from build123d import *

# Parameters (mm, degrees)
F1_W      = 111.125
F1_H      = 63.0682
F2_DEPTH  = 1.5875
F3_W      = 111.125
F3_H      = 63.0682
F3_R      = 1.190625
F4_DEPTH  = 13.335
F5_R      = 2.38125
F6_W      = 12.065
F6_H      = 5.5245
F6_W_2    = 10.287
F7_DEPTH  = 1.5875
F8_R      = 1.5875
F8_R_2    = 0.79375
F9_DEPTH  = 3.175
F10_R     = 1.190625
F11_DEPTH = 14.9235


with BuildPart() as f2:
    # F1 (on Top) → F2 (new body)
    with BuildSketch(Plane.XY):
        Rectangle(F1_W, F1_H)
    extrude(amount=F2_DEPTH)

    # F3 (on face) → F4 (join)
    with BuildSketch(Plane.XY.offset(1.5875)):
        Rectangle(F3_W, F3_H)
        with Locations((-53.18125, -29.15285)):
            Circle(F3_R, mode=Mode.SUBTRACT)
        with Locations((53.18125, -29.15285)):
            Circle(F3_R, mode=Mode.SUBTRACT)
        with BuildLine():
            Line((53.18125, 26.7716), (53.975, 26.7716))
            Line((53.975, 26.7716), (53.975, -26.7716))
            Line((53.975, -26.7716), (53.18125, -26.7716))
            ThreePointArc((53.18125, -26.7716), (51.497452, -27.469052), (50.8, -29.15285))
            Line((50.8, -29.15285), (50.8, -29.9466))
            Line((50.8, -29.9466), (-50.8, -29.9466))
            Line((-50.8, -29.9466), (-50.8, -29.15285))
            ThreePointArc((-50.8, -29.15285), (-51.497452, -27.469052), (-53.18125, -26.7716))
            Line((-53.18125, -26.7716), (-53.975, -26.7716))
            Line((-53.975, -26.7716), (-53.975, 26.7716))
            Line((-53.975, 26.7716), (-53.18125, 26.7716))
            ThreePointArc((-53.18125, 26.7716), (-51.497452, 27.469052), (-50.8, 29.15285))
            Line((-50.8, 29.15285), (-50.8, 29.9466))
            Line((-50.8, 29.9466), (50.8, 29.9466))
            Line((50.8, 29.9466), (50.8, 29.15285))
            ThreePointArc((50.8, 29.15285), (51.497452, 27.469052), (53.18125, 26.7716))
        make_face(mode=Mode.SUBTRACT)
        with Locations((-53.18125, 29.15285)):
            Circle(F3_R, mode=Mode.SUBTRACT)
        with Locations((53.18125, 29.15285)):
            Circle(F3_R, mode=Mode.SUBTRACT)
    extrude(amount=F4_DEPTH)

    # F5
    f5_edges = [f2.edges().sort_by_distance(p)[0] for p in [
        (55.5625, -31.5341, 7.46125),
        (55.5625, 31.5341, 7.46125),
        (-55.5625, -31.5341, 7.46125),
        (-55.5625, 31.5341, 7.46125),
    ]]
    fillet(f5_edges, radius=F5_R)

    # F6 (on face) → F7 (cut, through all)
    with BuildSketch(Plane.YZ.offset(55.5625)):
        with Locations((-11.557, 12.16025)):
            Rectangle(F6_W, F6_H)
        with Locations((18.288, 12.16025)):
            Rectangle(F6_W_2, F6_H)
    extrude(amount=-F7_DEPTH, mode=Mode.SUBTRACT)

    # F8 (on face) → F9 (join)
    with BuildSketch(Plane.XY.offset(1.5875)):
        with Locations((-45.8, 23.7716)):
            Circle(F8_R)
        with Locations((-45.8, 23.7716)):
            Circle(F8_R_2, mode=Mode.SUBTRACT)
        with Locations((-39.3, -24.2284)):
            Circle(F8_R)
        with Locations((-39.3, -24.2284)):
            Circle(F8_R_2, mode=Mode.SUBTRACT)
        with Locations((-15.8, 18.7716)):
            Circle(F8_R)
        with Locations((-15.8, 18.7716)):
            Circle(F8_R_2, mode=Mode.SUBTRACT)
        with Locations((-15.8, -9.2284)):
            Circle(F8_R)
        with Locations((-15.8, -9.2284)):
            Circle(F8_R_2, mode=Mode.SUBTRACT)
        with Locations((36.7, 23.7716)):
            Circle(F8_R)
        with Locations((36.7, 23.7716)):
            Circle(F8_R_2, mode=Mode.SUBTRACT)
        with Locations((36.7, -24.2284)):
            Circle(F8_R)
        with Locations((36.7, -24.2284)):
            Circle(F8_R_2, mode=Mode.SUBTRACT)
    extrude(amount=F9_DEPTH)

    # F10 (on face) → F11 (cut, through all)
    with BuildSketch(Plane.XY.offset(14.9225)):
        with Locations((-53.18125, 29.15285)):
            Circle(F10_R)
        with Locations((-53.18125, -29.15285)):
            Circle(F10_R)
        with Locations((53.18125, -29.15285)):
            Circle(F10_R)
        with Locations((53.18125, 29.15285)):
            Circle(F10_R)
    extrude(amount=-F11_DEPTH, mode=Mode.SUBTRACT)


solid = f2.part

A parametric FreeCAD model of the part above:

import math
import FreeCAD as App
import Part
import Sketcher

V = App.Vector
Q = App.Units.Quantity


def edges_at(feature, points):
    """Names of the edges that pass closest to the given points."""
    edges = feature.Shape.Edges
    near = lambda p: min(range(len(edges)), key=lambda i: edges[i].distToShape(Part.Vertex(*p))[0])
    return sorted({f"Edge{near(p) + 1}" for p in points})


def add_polygon(sketch, points):
    """Adds a closed chain of lines whose ends are joined by coincident constraints."""
    first, n = sketch.GeometryCount, len(points)
    for a, b in zip(points, points[1:] + points[:1]):
        sketch.addGeometry(Part.LineSegment(App.Vector(*a, 0), App.Vector(*b, 0)), False)
    for i in range(n):
        sketch.addConstraint(Sketcher.Constraint("Coincident", first + i, 2, first + (i + 1) % n, 1))

doc = App.newDocument("Part")
params = doc.addObject("Spreadsheet::Sheet", "Params")
for row, (alias, value) in enumerate([
    ("sketch1_width", "4.375 in"),
    ("sketch1_height", "2.483 in"),
    ("pad1_length", "0.0625 in"),
    ("sketch2_width", "4 in"),
    ("sketch2_diameter", "0.09375 in"),
    ("sketch2_radius", "0.09375 in"),
    ("sketch2_width2", "4.375 in"),
    ("sketch2_width3", "0.03125 in"),
    ("pad2_length", "0.525 in"),
    ("fillet_radius", "0.09375 in"),
    ("sketch3_width", "0.475 in"),
    ("sketch3_width2", "0.405 in"),
    ("pocket1_length", "0.0625 in"),
    ("sketch4_diameter", "0.125 in"),
    ("sketch4_diameter2", "0.0625 in"),
    ("pad3_length", "0.125 in"),
    ("sketch5_diameter", "0.09375 in"),
], start=1):
    params.set(f"A{row}", alias)
    params.set(f"B{row}", "=" + value)
    params.setAlias(f"B{row}", alias)

body = doc.addObject("PartDesign::Body", "Body")

sketch1 = body.newObject("Sketcher::SketchObject", "Sketch")
sketch1.AttachmentSupport = (doc.getObject("XY_Plane"), [""])
sketch1.MapMode = "FlatFace"
add_polygon(sketch1, [(-56, 32), (-56, -32), (56, -32), (56, 32)])
sketch1.addConstraint(Sketcher.Constraint("Vertical", 0))
sketch1.addConstraint(Sketcher.Constraint("Horizontal", 1))
sketch1.addConstraint(Sketcher.Constraint("Vertical", 2))
sketch1.addConstraint(Sketcher.Constraint("Horizontal", 3))
sketch1.addConstraint(Sketcher.Constraint("Symmetric", 0, 2, 2, 2, -1, 1))
sketch1.addConstraint(Sketcher.Constraint("DistanceX", 1, 1, 1, 2, Q("4.375 in")))
sketch1.addConstraint(Sketcher.Constraint("DistanceY", 0, 2, 0, 1, Q("2.483 in")))
sketch1.setExpression("Constraints[9]", "Params.sketch1_width")
sketch1.setExpression("Constraints[10]", "Params.sketch1_height")
pad1 = body.newObject("PartDesign::Pad", "Pad")
pad1.Profile = sketch1
pad1.setExpression("Length", "Params.pad1_length")

sketch2 = body.newObject("Sketcher::SketchObject", "Sketch001")
sketch2.AttachmentSupport = (doc.getObject("XY_Plane"), [""])
sketch2.MapMode = "FlatFace"
sketch2.AttachmentOffset = App.Placement(V(0, 0, 0.0625 * 25.4), App.Rotation())
add_polygon(sketch2, [(-55.6, 31.5), (-55.6, -31.5), (55.6, -31.5), (55.6, 31.5)])
sketch2.addGeometry(Part.Circle(V(-53.2, -29.2, 0), V(0, 0, 1), 1.2), False)
sketch2.addGeometry(Part.Circle(V(53.2, -29.2, 0), V(0, 0, 1), 1.2), False)
sketch2.addGeometry(Part.Circle(V(-53.2, 29.2, 0), V(0, 0, 1), 1.2), False)
sketch2.addGeometry(Part.ArcOfCircle(Part.Circle(V(53.2, 29.2, 0), V(0, 0, 1), 2.4), math.radians(-180), math.radians(-90)), False)
sketch2.addGeometry(Part.LineSegment(V(53.2, 26.8, 0), V(54, 26.8, 0)), False)
sketch2.addGeometry(Part.LineSegment(V(54, 26.8, 0), V(54, -26.8, 0)), False)
sketch2.addGeometry(Part.LineSegment(V(54, -26.8, 0), V(53.2, -26.8, 0)), False)
sketch2.addGeometry(Part.ArcOfCircle(Part.Circle(V(53.2, -29.2, 0), V(0, 0, 1), 2.4), math.radians(90), math.radians(180)), False)
sketch2.addGeometry(Part.LineSegment(V(50.8, -29.2, 0), V(50.8, -29.9, 0)), False)
sketch2.addGeometry(Part.LineSegment(V(50.8, -29.9, 0), V(-50.8, -29.9, 0)), False)
sketch2.addGeometry(Part.LineSegment(V(-50.8, -29.9, 0), V(-50.8, -29.2, 0)), False)
sketch2.addGeometry(Part.ArcOfCircle(Part.Circle(V(-53.2, -29.2, 0), V(0, 0, 1), 2.4), math.radians(0), math.radians(90)), False)
sketch2.addGeometry(Part.LineSegment(V(-53.2, -26.8, 0), V(-54, -26.8, 0)), False)
sketch2.addGeometry(Part.LineSegment(V(-54, -26.8, 0), V(-54, 26.8, 0)), False)
sketch2.addGeometry(Part.LineSegment(V(-54, 26.8, 0), V(-53.2, 26.8, 0)), False)
sketch2.addGeometry(Part.ArcOfCircle(Part.Circle(V(-53.2, 29.2, 0), V(0, 0, 1), 2.4), math.radians(-90), math.radians(0)), False)
sketch2.addGeometry(Part.LineSegment(V(-50.8, 29.2, 0), V(-50.8, 29.9, 0)), False)
sketch2.addGeometry(Part.LineSegment(V(-50.8, 29.9, 0), V(50.8, 29.9, 0)), False)
sketch2.addGeometry(Part.LineSegment(V(50.8, 29.9, 0), V(50.8, 29.2, 0)), False)
sketch2.addGeometry(Part.Circle(V(53.2, 29.2, 0), V(0, 0, 1), 1.2), False)
sketch2.addConstraint(Sketcher.Constraint("Tangent", 7, 2, 8, 1))
sketch2.addConstraint(Sketcher.Constraint("Coincident", 8, 2, 9, 1))
sketch2.addConstraint(Sketcher.Constraint("Coincident", 9, 2, 10, 1))
sketch2.addConstraint(Sketcher.Constraint("Tangent", 10, 2, 11, 1))
sketch2.addConstraint(Sketcher.Constraint("Tangent", 11, 2, 12, 1))
sketch2.addConstraint(Sketcher.Constraint("Coincident", 12, 2, 13, 1))
sketch2.addConstraint(Sketcher.Constraint("Coincident", 13, 2, 14, 1))
sketch2.addConstraint(Sketcher.Constraint("Tangent", 14, 2, 15, 1))
sketch2.addConstraint(Sketcher.Constraint("Tangent", 15, 2, 16, 1))
sketch2.addConstraint(Sketcher.Constraint("Coincident", 16, 2, 17, 1))
sketch2.addConstraint(Sketcher.Constraint("Coincident", 17, 2, 18, 1))
sketch2.addConstraint(Sketcher.Constraint("Tangent", 18, 2, 19, 1))
sketch2.addConstraint(Sketcher.Constraint("Tangent", 19, 2, 20, 1))
sketch2.addConstraint(Sketcher.Constraint("Coincident", 20, 2, 21, 1))
sketch2.addConstraint(Sketcher.Constraint("Coincident", 21, 2, 22, 1))
sketch2.addConstraint(Sketcher.Constraint("Tangent", 22, 2, 7, 1))
sketch2.addConstraint(Sketcher.Constraint("Vertical", 0))
sketch2.addConstraint(Sketcher.Constraint("Horizontal", 1))
sketch2.addConstraint(Sketcher.Constraint("Vertical", 2))
sketch2.addConstraint(Sketcher.Constraint("Horizontal", 3))
sketch2.addConstraint(Sketcher.Constraint("Horizontal", 8))
sketch2.addConstraint(Sketcher.Constraint("Vertical", 9))
sketch2.addConstraint(Sketcher.Constraint("Horizontal", 10))
sketch2.addConstraint(Sketcher.Constraint("Vertical", 12))
sketch2.addConstraint(Sketcher.Constraint("Horizontal", 13))
sketch2.addConstraint(Sketcher.Constraint("Vertical", 14))
sketch2.addConstraint(Sketcher.Constraint("Horizontal", 16))
sketch2.addConstraint(Sketcher.Constraint("Vertical", 17))
sketch2.addConstraint(Sketcher.Constraint("Horizontal", 18))
sketch2.addConstraint(Sketcher.Constraint("Vertical", 20))
sketch2.addConstraint(Sketcher.Constraint("Horizontal", 21))
sketch2.addConstraint(Sketcher.Constraint("Vertical", 22))
sketch2.addConstraint(Sketcher.Constraint("Coincident", 11, 3, 5, 3))
sketch2.addConstraint(Sketcher.Constraint("Coincident", 15, 3, 4, 3))
sketch2.addConstraint(Sketcher.Constraint("Coincident", 19, 3, 6, 3))
sketch2.addConstraint(Sketcher.Constraint("Coincident", 23, 3, 7, 3))
sketch2.addConstraint(Sketcher.Constraint("Equal", 4, 5))
sketch2.addConstraint(Sketcher.Constraint("Equal", 5, 6))
sketch2.addConstraint(Sketcher.Constraint("Equal", 7, 11))
sketch2.addConstraint(Sketcher.Constraint("Equal", 11, 15))
sketch2.addConstraint(Sketcher.Constraint("Equal", 15, 19))
sketch2.addConstraint(Sketcher.Constraint("Equal", 6, 23))
sketch2.addConstraint(Sketcher.Constraint("Symmetric", 5, 3, 6, 3, -1, 1))
sketch2.addConstraint(Sketcher.Constraint("Symmetric", 4, 3, 7, 3, -1, 1))
sketch2.addConstraint(Sketcher.Constraint("Symmetric", 0, 2, 2, 2, -1, 1))
sketch2.addConstraint(Sketcher.Constraint("Symmetric", 4, 3, 5, 3, -2))
sketch2.addConstraint(Sketcher.Constraint("Equal", 10, 16))
sketch2.addConstraint(Sketcher.Constraint("Equal", 18, 12))
sketch2.addConstraint(Sketcher.Constraint("Equal", 14, 20))
sketch2.addConstraint(Sketcher.Constraint("DistanceX", 13, 2, 13, 1, Q("4 in")))
sketch2.addConstraint(Sketcher.Constraint("Diameter", 4, Q("0.09375 in")))
sketch2.addConstraint(Sketcher.Constraint("Radius", 7, Q("0.09375 in")))
sketch2.addConstraint(Sketcher.Constraint("DistanceX", 1, 1, 1, 2, Q("4.375 in")))
sketch2.addConstraint(Sketcher.Constraint("DistanceX", 8, 1, 8, 2, Q("0.03125 in")))
sketch2.addConstraint(Sketcher.Constraint("DistanceY", 0, 2, 0, 1, Q("2.483 in")))
sketch2.addConstraint(Sketcher.Constraint("DistanceY", 9, 2, 9, 1, Q("2.108 in")))
sketch2.setExpression("Constraints[53]", "Params.sketch2_width")
sketch2.setExpression("Constraints[54]", "Params.sketch2_diameter")
sketch2.setExpression("Constraints[55]", "Params.sketch2_radius")
sketch2.setExpression("Constraints[56]", "Params.sketch2_width2")
sketch2.setExpression("Constraints[57]", "Params.sketch2_width3")
pad2 = body.newObject("PartDesign::Pad", "Pad001")
pad2.Profile = sketch2
pad2.setExpression("Length", "Params.pad2_length")
doc.recompute()

fillet = body.newObject("PartDesign::Fillet", "Fillet")
fillet.Base = (pad2, edges_at(pad2, [
    (55.562, -31.534, 7.461),
    (55.562, 31.534, 7.461),
    (-55.562, -31.534, 7.461),
    (-55.562, 31.534, 7.461),
]))
fillet.setExpression("Radius", "Params.fillet_radius")

sketch3 = body.newObject("Sketcher::SketchObject", "Sketch002")
sketch3.AttachmentSupport = (doc.getObject("YZ_Plane"), [""])
sketch3.MapMode = "FlatFace"
sketch3.AttachmentOffset = App.Placement(V(0, 0, 2.1875 * 25.4), App.Rotation())
add_polygon(sketch3, [(-18, 15), (-18, 9), (-6, 9), (-6, 15)])
add_polygon(sketch3, [(13, 15), (13, 9), (23, 9), (23, 15)])
sketch3.addConstraint(Sketcher.Constraint("Vertical", 0))
sketch3.addConstraint(Sketcher.Constraint("Horizontal", 1))
sketch3.addConstraint(Sketcher.Constraint("Vertical", 2))
sketch3.addConstraint(Sketcher.Constraint("Horizontal", 3))
sketch3.addConstraint(Sketcher.Constraint("Vertical", 4))
sketch3.addConstraint(Sketcher.Constraint("Horizontal", 5))
sketch3.addConstraint(Sketcher.Constraint("Vertical", 6))
sketch3.addConstraint(Sketcher.Constraint("Horizontal", 7))
sketch3.addConstraint(Sketcher.Constraint("Horizontal", 1, 2, 4, 2))
sketch3.addConstraint(Sketcher.Constraint("Horizontal", 3, 2, 6, 2))
sketch3.addConstraint(Sketcher.Constraint("DistanceX", 1, 1, 1, 2, Q("0.475 in")))
sketch3.addConstraint(Sketcher.Constraint("DistanceX", 5, 1, 5, 2, Q("0.405 in")))
sketch3.addConstraint(Sketcher.Constraint("DistanceY", -1, 1, 0, 2, Q("0.37 in")))
sketch3.addConstraint(Sketcher.Constraint("DistanceX", 0, 2, 4, 2, Q("1.21 in")))
sketch3.addConstraint(Sketcher.Constraint("DistanceY", 0, 2, 0, 1, Q("0.2175 in")))
sketch3.addConstraint(Sketcher.Constraint("DistanceX", 0, 2, -1, 1, Q("0.6925 in")))
sketch3.setExpression("Constraints[18]", "Params.sketch3_width")
sketch3.setExpression("Constraints[19]", "Params.sketch3_width2")
pocket1 = body.newObject("PartDesign::Pocket", "Pocket")
pocket1.Profile = sketch3
pocket1.setExpression("Length", "Params.pocket1_length")

sketch4 = body.newObject("Sketcher::SketchObject", "Sketch003")
sketch4.AttachmentSupport = (doc.getObject("XY_Plane"), [""])
sketch4.MapMode = "FlatFace"
sketch4.AttachmentOffset = App.Placement(V(0, 0, 0.0625 * 25.4), App.Rotation())
sketch4.addGeometry(Part.Circle(V(-45.8, 23.8, 0), V(0, 0, 1), 1.6), False)
sketch4.addGeometry(Part.Circle(V(-45.8, 23.8, 0), V(0, 0, 1), 0.8), False)
sketch4.addGeometry(Part.Circle(V(-39.3, -24.2, 0), V(0, 0, 1), 1.6), False)
sketch4.addGeometry(Part.Circle(V(-39.3, -24.2, 0), V(0, 0, 1), 0.8), False)
sketch4.addGeometry(Part.Circle(V(-15.8, 18.8, 0), V(0, 0, 1), 1.6), False)
sketch4.addGeometry(Part.Circle(V(-15.8, 18.8, 0), V(0, 0, 1), 0.8), False)
sketch4.addGeometry(Part.Circle(V(-15.8, -9.2, 0), V(0, 0, 1), 1.6), False)
sketch4.addGeometry(Part.Circle(V(-15.8, -9.2, 0), V(0, 0, 1), 0.8), False)
sketch4.addGeometry(Part.Circle(V(36.7, 23.8, 0), V(0, 0, 1), 1.6), False)
sketch4.addGeometry(Part.Circle(V(36.7, 23.8, 0), V(0, 0, 1), 0.8), False)
sketch4.addGeometry(Part.Circle(V(36.7, -24.2, 0), V(0, 0, 1), 1.6), False)
sketch4.addGeometry(Part.Circle(V(36.7, -24.2, 0), V(0, 0, 1), 0.8), False)
sketch4.addConstraint(Sketcher.Constraint("Coincident", 1, 3, 0, 3))
sketch4.addConstraint(Sketcher.Constraint("Coincident", 3, 3, 2, 3))
sketch4.addConstraint(Sketcher.Constraint("Coincident", 5, 3, 4, 3))
sketch4.addConstraint(Sketcher.Constraint("Coincident", 7, 3, 6, 3))
sketch4.addConstraint(Sketcher.Constraint("Coincident", 9, 3, 8, 3))
sketch4.addConstraint(Sketcher.Constraint("Coincident", 11, 3, 10, 3))
sketch4.addConstraint(Sketcher.Constraint("Equal", 0, 2))
sketch4.addConstraint(Sketcher.Constraint("Equal", 1, 3))
sketch4.addConstraint(Sketcher.Constraint("Equal", 2, 4))
sketch4.addConstraint(Sketcher.Constraint("Equal", 3, 5))
sketch4.addConstraint(Sketcher.Constraint("Equal", 4, 6))
sketch4.addConstraint(Sketcher.Constraint("Equal", 5, 7))
sketch4.addConstraint(Sketcher.Constraint("Equal", 6, 8))
sketch4.addConstraint(Sketcher.Constraint("Equal", 7, 9))
sketch4.addConstraint(Sketcher.Constraint("Equal", 8, 10))
sketch4.addConstraint(Sketcher.Constraint("Equal", 9, 11))
sketch4.addConstraint(Sketcher.Constraint("Horizontal", 1, 3, 8, 3))
sketch4.addConstraint(Sketcher.Constraint("Horizontal", 3, 3, 10, 3))
sketch4.addConstraint(Sketcher.Constraint("Vertical", 5, 3, 6, 3))
sketch4.addConstraint(Sketcher.Constraint("Vertical", 9, 3, 10, 3))
sketch4.addConstraint(Sketcher.Constraint("Diameter", 0, Q("0.125 in")))
sketch4.addConstraint(Sketcher.Constraint("Diameter", 1, Q("0.0625 in")))
sketch4.addConstraint(Sketcher.Constraint("DistanceX", 0, 3, -1, 1, Q("45.8 mm")))
sketch4.addConstraint(Sketcher.Constraint("DistanceY", -1, 1, 0, 3, Q("23.7716 mm")))
sketch4.addConstraint(Sketcher.Constraint("DistanceX", 2, 3, -1, 1, Q("39.3 mm")))
sketch4.addConstraint(Sketcher.Constraint("DistanceY", 2, 3, -1, 1, Q("24.2284 mm")))
sketch4.addConstraint(Sketcher.Constraint("DistanceX", 4, 3, -1, 1, Q("15.8 mm")))
sketch4.addConstraint(Sketcher.Constraint("DistanceY", -1, 1, 4, 3, Q("18.7716 mm")))
sketch4.addConstraint(Sketcher.Constraint("DistanceY", 6, 3, -1, 1, Q("9.2284 mm")))
sketch4.addConstraint(Sketcher.Constraint("DistanceX", -1, 1, 8, 3, Q("36.7 mm")))
sketch4.setExpression("Constraints[20]", "Params.sketch4_diameter")
sketch4.setExpression("Constraints[21]", "Params.sketch4_diameter2")
pad3 = body.newObject("PartDesign::Pad", "Pad002")
pad3.Profile = sketch4
pad3.setExpression("Length", "Params.pad3_length")

sketch5 = body.newObject("Sketcher::SketchObject", "Sketch004")
sketch5.AttachmentSupport = (doc.getObject("XY_Plane"), [""])
sketch5.MapMode = "FlatFace"
sketch5.AttachmentOffset = App.Placement(V(0, 0, 0.5875 * 25.4), App.Rotation())
sketch5.addGeometry(Part.Circle(V(-53.2, 29.2, 0), V(0, 0, 1), 1.2), False)
sketch5.addGeometry(Part.Circle(V(-53.2, -29.2, 0), V(0, 0, 1), 1.2), False)
sketch5.addGeometry(Part.Circle(V(53.2, -29.2, 0), V(0, 0, 1), 1.2), False)
sketch5.addGeometry(Part.Circle(V(53.2, 29.2, 0), V(0, 0, 1), 1.2), False)
sketch5.addConstraint(Sketcher.Constraint("Equal", 0, 1))
sketch5.addConstraint(Sketcher.Constraint("Equal", 1, 2))
sketch5.addConstraint(Sketcher.Constraint("Equal", 2, 3))
sketch5.addConstraint(Sketcher.Constraint("Symmetric", 0, 3, 2, 3, -1, 1))
sketch5.addConstraint(Sketcher.Constraint("Symmetric", 1, 3, 3, 3, -1, 1))
sketch5.addConstraint(Sketcher.Constraint("Symmetric", 1, 3, 2, 3, -2))
sketch5.addConstraint(Sketcher.Constraint("Diameter", 0, Q("0.09375 in")))
sketch5.addConstraint(Sketcher.Constraint("DistanceX", 0, 3, -1, 1, Q("2.09375 in")))
sketch5.addConstraint(Sketcher.Constraint("DistanceY", 1, 3, 0, 3, Q("2.2955 in")))
sketch5.setExpression("Constraints[6]", "Params.sketch5_diameter")
pocket2 = body.newObject("PartDesign::Pocket", "Pocket001")
pocket2.Profile = sketch5
pocket2.Type = "ThroughAll"

doc.recompute()
